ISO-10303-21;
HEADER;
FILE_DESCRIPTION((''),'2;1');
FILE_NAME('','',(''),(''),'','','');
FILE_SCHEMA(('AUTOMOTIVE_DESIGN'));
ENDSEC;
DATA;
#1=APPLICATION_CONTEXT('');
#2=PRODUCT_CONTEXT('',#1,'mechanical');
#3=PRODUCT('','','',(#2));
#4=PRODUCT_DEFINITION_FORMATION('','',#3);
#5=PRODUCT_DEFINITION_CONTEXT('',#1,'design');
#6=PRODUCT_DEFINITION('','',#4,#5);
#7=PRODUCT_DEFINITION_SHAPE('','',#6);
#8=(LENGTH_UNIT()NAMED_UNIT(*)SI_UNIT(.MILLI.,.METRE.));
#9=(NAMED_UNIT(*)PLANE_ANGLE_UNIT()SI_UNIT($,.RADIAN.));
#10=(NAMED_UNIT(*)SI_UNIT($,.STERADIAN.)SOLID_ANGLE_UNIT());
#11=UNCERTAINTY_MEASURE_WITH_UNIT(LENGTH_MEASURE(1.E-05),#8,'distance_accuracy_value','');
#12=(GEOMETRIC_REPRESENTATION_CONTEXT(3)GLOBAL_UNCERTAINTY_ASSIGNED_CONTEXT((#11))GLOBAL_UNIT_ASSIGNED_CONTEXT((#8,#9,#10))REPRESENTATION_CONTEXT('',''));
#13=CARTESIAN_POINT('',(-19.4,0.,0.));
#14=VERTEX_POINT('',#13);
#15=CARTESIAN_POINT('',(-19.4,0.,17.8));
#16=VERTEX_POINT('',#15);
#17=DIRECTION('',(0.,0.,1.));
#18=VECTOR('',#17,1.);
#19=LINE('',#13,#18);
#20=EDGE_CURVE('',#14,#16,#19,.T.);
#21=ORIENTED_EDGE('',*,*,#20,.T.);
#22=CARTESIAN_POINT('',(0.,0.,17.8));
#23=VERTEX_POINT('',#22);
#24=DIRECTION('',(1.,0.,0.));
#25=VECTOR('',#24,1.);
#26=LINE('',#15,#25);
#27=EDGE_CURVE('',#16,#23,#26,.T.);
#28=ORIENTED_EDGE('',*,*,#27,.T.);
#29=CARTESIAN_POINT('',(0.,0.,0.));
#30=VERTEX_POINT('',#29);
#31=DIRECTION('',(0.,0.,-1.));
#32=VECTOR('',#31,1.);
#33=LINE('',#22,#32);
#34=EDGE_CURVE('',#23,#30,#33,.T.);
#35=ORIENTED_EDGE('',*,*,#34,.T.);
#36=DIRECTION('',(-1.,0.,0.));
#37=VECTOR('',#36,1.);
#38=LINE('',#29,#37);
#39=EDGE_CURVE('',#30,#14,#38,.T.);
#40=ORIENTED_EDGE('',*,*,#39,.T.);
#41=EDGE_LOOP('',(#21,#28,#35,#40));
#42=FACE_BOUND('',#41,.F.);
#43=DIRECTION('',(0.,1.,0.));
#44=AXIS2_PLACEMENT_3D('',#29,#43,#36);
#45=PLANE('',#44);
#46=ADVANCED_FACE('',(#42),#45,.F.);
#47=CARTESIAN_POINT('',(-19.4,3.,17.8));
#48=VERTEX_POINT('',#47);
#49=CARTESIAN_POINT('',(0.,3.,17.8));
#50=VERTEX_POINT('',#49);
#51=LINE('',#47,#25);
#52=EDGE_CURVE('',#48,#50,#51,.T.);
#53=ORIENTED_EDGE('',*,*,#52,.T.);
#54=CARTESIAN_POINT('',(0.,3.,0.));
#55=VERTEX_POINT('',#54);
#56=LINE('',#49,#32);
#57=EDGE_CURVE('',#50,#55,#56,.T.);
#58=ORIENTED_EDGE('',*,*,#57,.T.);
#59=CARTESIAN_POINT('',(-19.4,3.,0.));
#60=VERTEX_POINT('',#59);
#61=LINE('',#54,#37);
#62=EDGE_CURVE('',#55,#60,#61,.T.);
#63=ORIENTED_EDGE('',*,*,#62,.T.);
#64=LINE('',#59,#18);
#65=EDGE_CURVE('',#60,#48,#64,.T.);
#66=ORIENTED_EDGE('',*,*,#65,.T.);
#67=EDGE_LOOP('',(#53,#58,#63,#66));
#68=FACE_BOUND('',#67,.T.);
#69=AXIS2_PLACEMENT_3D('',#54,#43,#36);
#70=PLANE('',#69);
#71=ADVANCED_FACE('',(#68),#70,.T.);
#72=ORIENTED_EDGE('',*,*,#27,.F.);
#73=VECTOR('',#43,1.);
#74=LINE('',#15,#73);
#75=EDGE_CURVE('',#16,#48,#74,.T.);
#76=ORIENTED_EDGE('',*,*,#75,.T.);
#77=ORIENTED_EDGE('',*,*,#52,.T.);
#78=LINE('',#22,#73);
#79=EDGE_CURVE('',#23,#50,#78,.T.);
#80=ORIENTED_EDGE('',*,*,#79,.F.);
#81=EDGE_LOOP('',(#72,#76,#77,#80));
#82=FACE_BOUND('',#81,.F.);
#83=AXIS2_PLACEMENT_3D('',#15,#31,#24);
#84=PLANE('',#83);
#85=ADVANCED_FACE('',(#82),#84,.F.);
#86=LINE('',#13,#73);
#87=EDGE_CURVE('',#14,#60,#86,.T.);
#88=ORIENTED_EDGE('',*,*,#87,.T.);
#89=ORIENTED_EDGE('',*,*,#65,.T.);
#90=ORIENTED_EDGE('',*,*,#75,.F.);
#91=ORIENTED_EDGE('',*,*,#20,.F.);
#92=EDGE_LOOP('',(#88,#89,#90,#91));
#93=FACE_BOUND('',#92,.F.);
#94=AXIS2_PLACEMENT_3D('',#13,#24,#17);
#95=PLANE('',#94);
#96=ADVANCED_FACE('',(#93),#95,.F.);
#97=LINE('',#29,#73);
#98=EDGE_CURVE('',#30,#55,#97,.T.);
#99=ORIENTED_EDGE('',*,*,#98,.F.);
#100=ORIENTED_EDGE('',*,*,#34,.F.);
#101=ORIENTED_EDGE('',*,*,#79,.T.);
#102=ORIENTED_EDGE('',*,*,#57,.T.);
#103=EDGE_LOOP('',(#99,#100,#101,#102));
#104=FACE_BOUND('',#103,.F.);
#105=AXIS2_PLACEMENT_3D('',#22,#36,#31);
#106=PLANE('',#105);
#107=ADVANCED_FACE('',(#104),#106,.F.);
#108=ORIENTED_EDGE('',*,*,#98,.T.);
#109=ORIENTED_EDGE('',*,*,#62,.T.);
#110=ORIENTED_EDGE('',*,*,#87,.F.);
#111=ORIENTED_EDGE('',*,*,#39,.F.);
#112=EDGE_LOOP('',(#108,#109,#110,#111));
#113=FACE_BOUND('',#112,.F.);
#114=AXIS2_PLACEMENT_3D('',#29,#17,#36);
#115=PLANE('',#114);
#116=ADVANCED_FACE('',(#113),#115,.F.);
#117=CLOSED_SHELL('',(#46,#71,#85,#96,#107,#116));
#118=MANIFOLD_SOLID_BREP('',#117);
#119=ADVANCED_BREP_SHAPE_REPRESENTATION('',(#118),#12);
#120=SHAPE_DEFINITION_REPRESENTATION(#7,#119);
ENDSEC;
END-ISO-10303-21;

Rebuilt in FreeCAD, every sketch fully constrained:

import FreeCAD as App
import Part
import Sketcher

V = App.Vector

doc = App.newDocument("Part")
body = doc.addObject("PartDesign::Body", "Body")

sketch1 = body.newObject("Sketcher::SketchObject", "Sketch")
sketch1.AttachmentSupport = (doc.getObject("XZ_Plane"), [""])
sketch1.MapMode = "FlatFace"
sketch1.addGeometry([
    Part.LineSegment(V(-19.4, 0, 0), V(-19.4, 17.8, 0)),
    Part.LineSegment(V(-19.4, 17.8, 0), V(0, 17.8, 0)),
    Part.LineSegment(V(0, 17.8, 0), V(0, 0, 0)),
    Part.LineSegment(V(0, 0, 0), V(-19.4, 0, 0)),
], False)
sketch1.addConstraint([
    Sketcher.Constraint("Coincident", 0, 2, 1, 1),
    Sketcher.Constraint("Coincident", 1, 2, 2, 1),
    Sketcher.Constraint("Coincident", 2, 2, 3, 1),
    Sketcher.Constraint("Coincident", 3, 2, 0, 1),
    Sketcher.Constraint("Vertical", 0),
    Sketcher.Constraint("Horizontal", 1),
    Sketcher.Constraint("Vertical", 2),
    Sketcher.Constraint("Horizontal", 3),
    Sketcher.Constraint("Coincident", 2, 2, -1, 1),
    Sketcher.Constraint("DistanceX", 1, 1, 1, 2, 19.4),
    Sketcher.Constraint("DistanceY", 0, 1, 0, 2, 17.8),
])
pad1 = body.newObject("PartDesign::Pad", "Pad")
pad1.Profile = sketch1
pad1.Length = 3
pad1.Reversed = True

doc.recompute()
